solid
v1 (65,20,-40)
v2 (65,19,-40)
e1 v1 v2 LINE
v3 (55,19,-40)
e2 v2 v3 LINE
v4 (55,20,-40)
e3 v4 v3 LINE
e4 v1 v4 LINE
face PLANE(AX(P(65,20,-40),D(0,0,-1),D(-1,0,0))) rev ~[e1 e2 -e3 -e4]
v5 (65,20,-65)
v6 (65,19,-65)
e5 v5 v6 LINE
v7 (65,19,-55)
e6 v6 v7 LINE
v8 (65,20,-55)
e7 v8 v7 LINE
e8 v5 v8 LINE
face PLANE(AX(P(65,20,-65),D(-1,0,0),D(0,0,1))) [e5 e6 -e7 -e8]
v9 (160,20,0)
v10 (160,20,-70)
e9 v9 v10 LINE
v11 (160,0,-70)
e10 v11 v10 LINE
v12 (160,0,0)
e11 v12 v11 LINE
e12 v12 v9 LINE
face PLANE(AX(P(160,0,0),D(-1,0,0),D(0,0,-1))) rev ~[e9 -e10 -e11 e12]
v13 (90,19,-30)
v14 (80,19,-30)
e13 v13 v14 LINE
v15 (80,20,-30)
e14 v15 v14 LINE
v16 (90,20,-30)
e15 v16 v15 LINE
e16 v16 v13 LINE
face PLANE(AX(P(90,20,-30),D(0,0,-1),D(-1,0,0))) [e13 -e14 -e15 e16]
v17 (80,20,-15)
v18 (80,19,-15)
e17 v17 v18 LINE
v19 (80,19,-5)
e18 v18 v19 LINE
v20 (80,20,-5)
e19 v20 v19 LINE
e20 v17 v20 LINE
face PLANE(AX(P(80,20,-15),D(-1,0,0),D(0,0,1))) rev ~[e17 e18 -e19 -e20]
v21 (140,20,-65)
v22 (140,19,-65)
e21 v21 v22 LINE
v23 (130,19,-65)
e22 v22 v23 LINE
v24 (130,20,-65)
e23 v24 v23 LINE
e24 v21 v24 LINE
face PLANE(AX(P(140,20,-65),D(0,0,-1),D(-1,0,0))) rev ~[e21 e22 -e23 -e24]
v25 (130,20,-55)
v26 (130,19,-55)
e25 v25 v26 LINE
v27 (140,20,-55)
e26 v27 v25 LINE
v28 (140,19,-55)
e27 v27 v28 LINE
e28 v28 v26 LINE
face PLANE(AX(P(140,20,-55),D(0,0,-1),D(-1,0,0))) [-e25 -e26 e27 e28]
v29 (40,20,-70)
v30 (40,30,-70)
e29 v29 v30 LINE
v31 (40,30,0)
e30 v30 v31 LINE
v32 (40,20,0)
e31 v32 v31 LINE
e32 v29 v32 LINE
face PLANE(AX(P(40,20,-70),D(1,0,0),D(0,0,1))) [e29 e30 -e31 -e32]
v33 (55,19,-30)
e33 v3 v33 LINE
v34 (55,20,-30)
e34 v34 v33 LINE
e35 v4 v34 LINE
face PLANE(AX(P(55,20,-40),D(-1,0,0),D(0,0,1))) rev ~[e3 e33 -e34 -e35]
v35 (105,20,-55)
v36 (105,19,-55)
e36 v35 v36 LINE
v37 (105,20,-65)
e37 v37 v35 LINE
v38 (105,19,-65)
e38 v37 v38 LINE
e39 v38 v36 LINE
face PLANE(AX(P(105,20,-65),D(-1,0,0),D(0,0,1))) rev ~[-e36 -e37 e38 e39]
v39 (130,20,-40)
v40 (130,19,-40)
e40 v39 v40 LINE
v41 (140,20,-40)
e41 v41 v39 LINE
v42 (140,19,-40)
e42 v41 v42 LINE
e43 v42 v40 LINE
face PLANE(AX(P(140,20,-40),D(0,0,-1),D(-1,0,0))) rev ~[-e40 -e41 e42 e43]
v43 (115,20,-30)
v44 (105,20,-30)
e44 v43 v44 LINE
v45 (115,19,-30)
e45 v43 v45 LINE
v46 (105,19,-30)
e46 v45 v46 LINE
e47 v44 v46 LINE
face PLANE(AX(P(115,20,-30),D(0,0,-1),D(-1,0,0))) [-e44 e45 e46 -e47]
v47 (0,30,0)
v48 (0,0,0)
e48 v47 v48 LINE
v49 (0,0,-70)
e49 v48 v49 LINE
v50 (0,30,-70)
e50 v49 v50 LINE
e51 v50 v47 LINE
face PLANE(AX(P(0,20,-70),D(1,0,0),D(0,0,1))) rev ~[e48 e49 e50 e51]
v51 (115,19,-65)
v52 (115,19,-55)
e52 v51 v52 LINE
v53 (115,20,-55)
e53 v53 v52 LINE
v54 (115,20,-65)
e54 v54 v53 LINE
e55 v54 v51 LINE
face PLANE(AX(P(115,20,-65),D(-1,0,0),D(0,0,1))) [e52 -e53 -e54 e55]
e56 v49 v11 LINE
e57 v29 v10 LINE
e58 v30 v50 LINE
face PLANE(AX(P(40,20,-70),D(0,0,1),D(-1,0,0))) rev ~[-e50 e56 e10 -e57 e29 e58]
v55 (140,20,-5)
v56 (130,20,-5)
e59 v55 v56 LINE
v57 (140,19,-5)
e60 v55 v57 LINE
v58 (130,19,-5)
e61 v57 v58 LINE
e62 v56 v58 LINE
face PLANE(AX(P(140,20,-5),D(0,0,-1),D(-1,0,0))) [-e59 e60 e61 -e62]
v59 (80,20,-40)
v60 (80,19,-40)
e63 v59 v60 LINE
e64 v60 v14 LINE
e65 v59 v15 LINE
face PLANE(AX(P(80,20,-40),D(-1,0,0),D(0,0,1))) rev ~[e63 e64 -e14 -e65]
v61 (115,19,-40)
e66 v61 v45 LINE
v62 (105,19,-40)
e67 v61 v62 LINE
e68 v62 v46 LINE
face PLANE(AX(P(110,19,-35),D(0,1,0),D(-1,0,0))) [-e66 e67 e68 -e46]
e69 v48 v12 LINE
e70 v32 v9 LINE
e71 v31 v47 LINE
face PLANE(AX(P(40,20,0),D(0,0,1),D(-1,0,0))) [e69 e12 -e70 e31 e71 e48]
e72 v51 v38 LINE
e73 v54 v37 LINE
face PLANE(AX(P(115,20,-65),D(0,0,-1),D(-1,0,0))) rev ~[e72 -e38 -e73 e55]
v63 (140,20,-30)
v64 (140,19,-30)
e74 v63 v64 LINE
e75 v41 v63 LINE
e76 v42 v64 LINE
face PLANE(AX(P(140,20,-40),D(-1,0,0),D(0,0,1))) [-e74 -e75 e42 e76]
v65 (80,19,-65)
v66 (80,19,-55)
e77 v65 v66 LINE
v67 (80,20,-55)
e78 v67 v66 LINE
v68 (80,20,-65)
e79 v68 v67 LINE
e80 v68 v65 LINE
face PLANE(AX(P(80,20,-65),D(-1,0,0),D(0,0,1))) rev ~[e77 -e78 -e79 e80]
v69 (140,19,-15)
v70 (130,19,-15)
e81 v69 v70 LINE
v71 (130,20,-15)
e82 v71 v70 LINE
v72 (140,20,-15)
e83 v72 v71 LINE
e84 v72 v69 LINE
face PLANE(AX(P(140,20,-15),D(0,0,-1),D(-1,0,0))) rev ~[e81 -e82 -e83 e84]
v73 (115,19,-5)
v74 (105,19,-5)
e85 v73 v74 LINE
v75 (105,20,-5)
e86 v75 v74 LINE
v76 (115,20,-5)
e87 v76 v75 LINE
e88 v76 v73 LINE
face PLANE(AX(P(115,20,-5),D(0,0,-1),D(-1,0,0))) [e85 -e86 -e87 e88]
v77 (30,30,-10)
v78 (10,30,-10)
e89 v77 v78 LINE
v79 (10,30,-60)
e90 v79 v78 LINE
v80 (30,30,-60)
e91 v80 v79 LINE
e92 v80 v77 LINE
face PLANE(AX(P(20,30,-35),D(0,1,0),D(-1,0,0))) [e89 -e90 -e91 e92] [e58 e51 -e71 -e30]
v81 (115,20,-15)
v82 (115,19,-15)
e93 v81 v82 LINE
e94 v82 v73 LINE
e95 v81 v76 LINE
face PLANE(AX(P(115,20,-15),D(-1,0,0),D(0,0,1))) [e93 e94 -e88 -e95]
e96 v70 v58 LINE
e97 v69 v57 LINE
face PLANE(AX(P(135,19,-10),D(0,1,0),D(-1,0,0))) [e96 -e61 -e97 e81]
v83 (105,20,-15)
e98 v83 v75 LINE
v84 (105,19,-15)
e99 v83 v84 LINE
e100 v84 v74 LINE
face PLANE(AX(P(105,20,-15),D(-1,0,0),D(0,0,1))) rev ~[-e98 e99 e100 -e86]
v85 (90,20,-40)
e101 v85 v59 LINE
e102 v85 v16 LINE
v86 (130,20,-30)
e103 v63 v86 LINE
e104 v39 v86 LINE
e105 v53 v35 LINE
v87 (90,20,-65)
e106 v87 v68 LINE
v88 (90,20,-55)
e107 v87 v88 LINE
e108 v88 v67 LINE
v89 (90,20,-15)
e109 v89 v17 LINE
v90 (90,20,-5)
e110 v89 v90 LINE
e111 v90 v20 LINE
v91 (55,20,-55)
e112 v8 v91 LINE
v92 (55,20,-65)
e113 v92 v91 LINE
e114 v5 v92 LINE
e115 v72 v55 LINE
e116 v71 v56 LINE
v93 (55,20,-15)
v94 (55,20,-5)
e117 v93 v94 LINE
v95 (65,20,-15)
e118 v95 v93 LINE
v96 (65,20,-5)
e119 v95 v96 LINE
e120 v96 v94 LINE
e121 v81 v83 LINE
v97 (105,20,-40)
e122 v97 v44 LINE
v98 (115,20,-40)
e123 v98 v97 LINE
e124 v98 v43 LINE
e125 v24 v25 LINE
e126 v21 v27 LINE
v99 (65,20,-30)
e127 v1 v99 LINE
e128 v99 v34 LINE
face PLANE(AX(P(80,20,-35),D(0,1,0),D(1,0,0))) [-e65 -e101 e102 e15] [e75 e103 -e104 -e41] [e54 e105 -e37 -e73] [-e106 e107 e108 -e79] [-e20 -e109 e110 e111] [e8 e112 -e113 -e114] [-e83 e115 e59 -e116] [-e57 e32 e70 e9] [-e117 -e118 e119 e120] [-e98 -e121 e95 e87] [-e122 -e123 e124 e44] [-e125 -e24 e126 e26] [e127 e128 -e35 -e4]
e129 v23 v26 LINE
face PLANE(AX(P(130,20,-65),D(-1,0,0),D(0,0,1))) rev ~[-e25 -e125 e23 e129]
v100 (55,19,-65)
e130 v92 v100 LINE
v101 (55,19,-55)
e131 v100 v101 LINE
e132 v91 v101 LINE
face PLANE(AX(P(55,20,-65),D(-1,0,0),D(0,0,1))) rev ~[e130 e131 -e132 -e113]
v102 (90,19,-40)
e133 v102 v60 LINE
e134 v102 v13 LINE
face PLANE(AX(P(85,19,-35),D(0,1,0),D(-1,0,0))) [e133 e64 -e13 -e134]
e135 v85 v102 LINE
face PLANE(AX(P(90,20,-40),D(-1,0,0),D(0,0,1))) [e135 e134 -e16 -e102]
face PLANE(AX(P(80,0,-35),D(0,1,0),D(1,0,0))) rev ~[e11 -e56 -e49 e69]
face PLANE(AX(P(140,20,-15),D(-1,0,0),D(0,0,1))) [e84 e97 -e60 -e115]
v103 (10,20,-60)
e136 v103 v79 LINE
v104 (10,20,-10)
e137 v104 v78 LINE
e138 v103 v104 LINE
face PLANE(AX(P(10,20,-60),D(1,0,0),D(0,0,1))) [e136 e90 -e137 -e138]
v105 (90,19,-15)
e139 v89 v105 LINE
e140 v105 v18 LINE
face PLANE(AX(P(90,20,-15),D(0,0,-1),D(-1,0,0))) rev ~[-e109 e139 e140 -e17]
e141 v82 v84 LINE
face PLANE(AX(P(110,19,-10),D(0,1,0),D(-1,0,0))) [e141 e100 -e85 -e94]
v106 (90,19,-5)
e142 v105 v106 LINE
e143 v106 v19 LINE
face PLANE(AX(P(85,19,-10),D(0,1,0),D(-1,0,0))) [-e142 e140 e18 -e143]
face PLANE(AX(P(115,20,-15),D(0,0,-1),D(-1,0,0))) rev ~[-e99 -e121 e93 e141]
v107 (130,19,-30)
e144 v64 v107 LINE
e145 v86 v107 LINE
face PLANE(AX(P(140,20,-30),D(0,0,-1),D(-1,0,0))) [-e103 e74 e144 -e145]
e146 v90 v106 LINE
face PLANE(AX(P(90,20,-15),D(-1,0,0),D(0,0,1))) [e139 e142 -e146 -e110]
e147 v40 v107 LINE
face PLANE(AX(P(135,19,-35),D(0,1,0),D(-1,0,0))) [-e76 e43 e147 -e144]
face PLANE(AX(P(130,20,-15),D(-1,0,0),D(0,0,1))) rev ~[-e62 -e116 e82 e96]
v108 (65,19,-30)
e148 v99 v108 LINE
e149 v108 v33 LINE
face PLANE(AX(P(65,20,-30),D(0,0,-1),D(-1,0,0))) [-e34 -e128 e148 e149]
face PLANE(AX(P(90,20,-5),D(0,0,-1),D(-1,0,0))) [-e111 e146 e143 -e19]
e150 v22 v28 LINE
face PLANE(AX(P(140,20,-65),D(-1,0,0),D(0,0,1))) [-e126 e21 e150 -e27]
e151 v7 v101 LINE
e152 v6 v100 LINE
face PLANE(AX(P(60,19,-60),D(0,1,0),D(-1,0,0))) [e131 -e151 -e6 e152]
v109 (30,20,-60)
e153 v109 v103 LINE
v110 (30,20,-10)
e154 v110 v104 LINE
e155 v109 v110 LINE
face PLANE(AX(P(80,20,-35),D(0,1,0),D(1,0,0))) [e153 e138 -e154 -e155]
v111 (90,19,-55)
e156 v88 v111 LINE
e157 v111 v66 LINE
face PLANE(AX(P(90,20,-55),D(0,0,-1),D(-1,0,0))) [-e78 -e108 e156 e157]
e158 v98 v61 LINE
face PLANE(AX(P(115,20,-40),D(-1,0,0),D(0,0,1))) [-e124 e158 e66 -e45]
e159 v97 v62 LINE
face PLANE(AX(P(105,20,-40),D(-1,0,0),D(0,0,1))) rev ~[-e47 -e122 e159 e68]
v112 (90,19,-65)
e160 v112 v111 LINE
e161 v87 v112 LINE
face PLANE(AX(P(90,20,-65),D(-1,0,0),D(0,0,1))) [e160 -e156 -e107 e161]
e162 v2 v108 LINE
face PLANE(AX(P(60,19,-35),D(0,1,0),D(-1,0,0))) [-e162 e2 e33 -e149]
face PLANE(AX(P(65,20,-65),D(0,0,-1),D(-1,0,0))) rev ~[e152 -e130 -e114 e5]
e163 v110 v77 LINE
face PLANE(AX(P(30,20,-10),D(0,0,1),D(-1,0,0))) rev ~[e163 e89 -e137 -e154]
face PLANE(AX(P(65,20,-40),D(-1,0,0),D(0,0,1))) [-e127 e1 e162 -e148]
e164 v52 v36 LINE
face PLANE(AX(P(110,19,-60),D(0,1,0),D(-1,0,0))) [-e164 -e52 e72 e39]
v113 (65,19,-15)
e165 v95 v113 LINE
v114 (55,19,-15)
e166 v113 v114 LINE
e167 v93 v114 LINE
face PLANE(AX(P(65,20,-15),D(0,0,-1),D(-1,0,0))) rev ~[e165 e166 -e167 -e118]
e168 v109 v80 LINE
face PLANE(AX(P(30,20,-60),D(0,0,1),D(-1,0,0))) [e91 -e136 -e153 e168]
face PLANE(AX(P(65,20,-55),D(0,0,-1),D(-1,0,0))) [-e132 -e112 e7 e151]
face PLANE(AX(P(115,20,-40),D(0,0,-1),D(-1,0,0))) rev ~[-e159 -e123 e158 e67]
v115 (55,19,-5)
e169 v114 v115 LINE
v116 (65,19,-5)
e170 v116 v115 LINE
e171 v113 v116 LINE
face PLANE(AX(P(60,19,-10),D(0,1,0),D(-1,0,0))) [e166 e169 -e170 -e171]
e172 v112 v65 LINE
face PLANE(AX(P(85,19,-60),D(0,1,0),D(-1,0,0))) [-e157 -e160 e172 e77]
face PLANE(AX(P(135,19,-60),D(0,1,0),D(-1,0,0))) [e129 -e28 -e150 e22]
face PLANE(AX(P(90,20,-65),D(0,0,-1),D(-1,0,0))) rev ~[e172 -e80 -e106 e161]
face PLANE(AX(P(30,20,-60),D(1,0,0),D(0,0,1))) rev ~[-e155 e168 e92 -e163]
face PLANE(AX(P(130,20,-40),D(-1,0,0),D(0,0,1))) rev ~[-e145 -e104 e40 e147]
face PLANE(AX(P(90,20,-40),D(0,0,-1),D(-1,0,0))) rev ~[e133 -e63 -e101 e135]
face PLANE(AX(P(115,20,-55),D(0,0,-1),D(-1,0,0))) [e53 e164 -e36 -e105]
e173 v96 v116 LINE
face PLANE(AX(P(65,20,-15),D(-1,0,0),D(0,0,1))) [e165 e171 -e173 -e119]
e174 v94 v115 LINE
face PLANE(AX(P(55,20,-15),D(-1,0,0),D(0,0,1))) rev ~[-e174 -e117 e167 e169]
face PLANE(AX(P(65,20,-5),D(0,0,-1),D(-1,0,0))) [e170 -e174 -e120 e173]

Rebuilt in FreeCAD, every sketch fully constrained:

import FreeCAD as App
import Part
import Sketcher
Q = App.Units.Quantity


def add_polygon(sketch, points):
    """Adds a closed chain of lines whose ends are joined by coincident constraints."""
    first, n = sketch.GeometryCount, len(points)
    for a, b in zip(points, points[1:] + points[:1]):
        sketch.addGeometry(Part.LineSegment(App.Vector(*a, 0), App.Vector(*b, 0)), False)
    for i in range(n):
        sketch.addConstraint(Sketcher.Constraint("Coincident", first + i, 2, first + (i + 1) % n, 1))

doc = App.newDocument("Part")
body = doc.addObject("PartDesign::Body", "Body")

sketch1 = body.newObject("Sketcher::SketchObject", "Sketch")
sketch1.AttachmentSupport = (doc.getObject("XZ_Plane"), [""])
sketch1.MapMode = "FlatFace"
add_polygon(sketch1, [(0, -70), (0, 0), (160, 0), (160, -70)])
sketch1.addConstraint([
    Sketcher.Constraint("Vertical", 0),
    Sketcher.Constraint("Horizontal", 1),
    Sketcher.Constraint("Vertical", 2),
    Sketcher.Constraint("Horizontal", 3),
    Sketcher.Constraint("Coincident", 0, 2, -1, 1),
    Sketcher.Constraint("DistanceX", 1, 1, 1, 2, Q("160 mm")),
    Sketcher.Constraint("DistanceY", 0, 1, 0, 2, Q("70 mm")),
])
pad1 = body.newObject("PartDesign::Pad", "Pad")
pad1.Profile = sketch1
pad1.Length = 20
pad1.Reversed = True

sketch2 = body.newObject("Sketcher::SketchObject", "Sketch001")
sketch2.AttachmentSupport = (doc.getObject("XZ_Plane"), [""])
sketch2.MapMode = "FlatFace"
sketch2.AttachmentOffset = App.Placement(App.Vector(0, 0, -20), App.Rotation())
add_polygon(sketch2, [(40, 0), (40, -70), (0, -70), (0, 0)])
add_polygon(sketch2, [(10, -60), (30, -60), (30, -10), (10, -10)])
sketch2.addConstraint([
    Sketcher.Constraint("Vertical", 0),
    Sketcher.Constraint("Horizontal", 1),
    Sketcher.Constraint("Vertical", 2),
    Sketcher.Constraint("Horizontal", 3),
    Sketcher.Constraint("Horizontal", 4),
    Sketcher.Constraint("Vertical", 5),
    Sketcher.Constraint("Horizontal", 6),
    Sketcher.Constraint("Vertical", 7),
    Sketcher.Constraint("Coincident", 2, 2, -1, 1),
    Sketcher.Constraint("DistanceX", 1, 2, 1, 1, Q("40 mm")),
    Sketcher.Constraint("DistanceX", 4, 1, 4, 2, Q("20 mm")),
    Sketcher.Constraint("DistanceY", 0, 2, 0, 1, Q("70 mm")),
    Sketcher.Constraint("DistanceY", 5, 1, 5, 2, Q("50 mm")),
    Sketcher.Constraint("DistanceX", -1, 1, 4, 2, Q("30 mm")),
    Sketcher.Constraint("DistanceY", 4, 2, -1, 1, Q("60 mm")),
])
pad2 = body.newObject("PartDesign::Pad", "Pad001")
pad2.Profile = sketch2
pad2.Length = 10
pad2.Reversed = True

sketch3 = body.newObject("Sketcher::SketchObject", "Sketch002")
sketch3.AttachmentSupport = (doc.getObject("XZ_Plane"), [""])
sketch3.MapMode = "FlatFace"
sketch3.AttachmentOffset = App.Placement(App.Vector(0, 0, -20), App.Rotation())
add_polygon(sketch3, [(115, -55), (115, -65), (105, -65), (105, -55)])
add_polygon(sketch3, [(115, -30), (115, -40), (105, -40), (105, -30)])
add_polygon(sketch3, [(140, -30), (140, -40), (130, -40), (130, -30)])
add_polygon(sketch3, [(65, -55), (65, -65), (55, -65), (55, -55)])
add_polygon(sketch3, [(65, -5), (65, -15), (55, -15), (55, -5)])
add_polygon(sketch3, [(140, -55), (140, -65), (130, -65), (130, -55)])
add_polygon(sketch3, [(140, -5), (140, -15), (130, -15), (130, -5)])
add_polygon(sketch3, [(115, -5), (115, -15), (105, -15), (105, -5)])
add_polygon(sketch3, [(90, -5), (90, -15), (80, -15), (80, -5)])
add_polygon(sketch3, [(90, -55), (90, -65), (80, -65), (80, -55)])
add_polygon(sketch3, [(65, -30), (65, -40), (55, -40), (55, -30)])
add_polygon(sketch3, [(90, -30), (90, -40), (80, -40), (80, -30)])
sketch3.addConstraint([
    Sketcher.Constraint("Vertical", 0),
    Sketcher.Constraint("Horizontal", 1),
    Sketcher.Constraint("Vertical", 2),
    Sketcher.Constraint("Horizontal", 3),
    Sketcher.Constraint("Vertical", 4),
    Sketcher.Constraint("Horizontal", 5),
    Sketcher.Constraint("Vertical", 6),
    Sketcher.Constraint("Horizontal", 7),
    Sketcher.Constraint("Vertical", 8),
    Sketcher.Constraint("Horizontal", 9),
    Sketcher.Constraint("Vertical", 10),
    Sketcher.Constraint("Horizontal", 11),
    Sketcher.Constraint("Vertical", 12),
    Sketcher.Constraint("Horizontal", 13),
    Sketcher.Constraint("Vertical", 14),
    Sketcher.Constraint("Horizontal", 15),
    Sketcher.Constraint("Vertical", 16),
    Sketcher.Constraint("Horizontal", 17),
    Sketcher.Constraint("Vertical", 18),
    Sketcher.Constraint("Horizontal", 19),
    Sketcher.Constraint("Vertical", 20),
    Sketcher.Constraint("Horizontal", 21),
    Sketcher.Constraint("Vertical", 22),
    Sketcher.Constraint("Horizontal", 23),
    Sketcher.Constraint("Vertical", 24),
    Sketcher.Constraint("Horizontal", 25),
    Sketcher.Constraint("Vertical", 26),
    Sketcher.Constraint("Horizontal", 27),
    Sketcher.Constraint("Vertical", 28),
    Sketcher.Constraint("Horizontal", 29),
    Sketcher.Constraint("Vertical", 30),
    Sketcher.Constraint("Horizontal", 31),
    Sketcher.Constraint("Vertical", 32),
    Sketcher.Constraint("Horizontal", 33),
    Sketcher.Constraint("Vertical", 34),
    Sketcher.Constraint("Horizontal", 35),
    Sketcher.Constraint("Vertical", 36),
    Sketcher.Constraint("Horizontal", 37),
    Sketcher.Constraint("Vertical", 38),
    Sketcher.Constraint("Horizontal", 39),
    Sketcher.Constraint("Vertical", 40),
    Sketcher.Constraint("Horizontal", 41),
    Sketcher.Constraint("Vertical", 42),
    Sketcher.Constraint("Horizontal", 43),
    Sketcher.Constraint("Vertical", 44),
    Sketcher.Constraint("Horizontal", 45),
    Sketcher.Constraint("Vertical", 46),
    Sketcher.Constraint("Horizontal", 47),
    Sketcher.Constraint("Horizontal", 5, 2, 8, 2),
    Sketcher.Constraint("Horizontal", 7, 2, 10, 2),
    Sketcher.Constraint("Horizontal", 1, 2, 12, 2),
    Sketcher.Constraint("Horizontal", 3, 2, 14, 2),
    Sketcher.Constraint("Horizontal", 13, 2, 20, 2),
    Sketcher.Constraint("Horizontal", 15, 2, 22, 2),
    Sketcher.Constraint("Horizontal", 17, 2, 24, 2),
    Sketcher.Constraint("Horizontal", 19, 2, 26, 2),
    Sketcher.Constraint("Horizontal", 25, 2, 28, 2),
    Sketcher.Constraint("Horizontal", 27, 2, 30, 2),
    Sketcher.Constraint("Horizontal", 29, 2, 32, 2),
    Sketcher.Constraint("Horizontal", 31, 2, 34, 2),
    Sketcher.Constraint("Horizontal", 21, 2, 36, 2),
    Sketcher.Constraint("Horizontal", 23, 2, 38, 2),
    Sketcher.Constraint("Horizontal", 9, 2, 40, 2),
    Sketcher.Constraint("Horizontal", 11, 2, 42, 2),
    Sketcher.Constraint("Horizontal", 41, 2, 44, 2),
    Sketcher.Constraint("Horizontal", 43, 2, 46, 2),
    Sketcher.Constraint("Vertical", 3, 2, 4, 2),
    Sketcher.Constraint("Vertical", 2, 2, 5, 2),
    Sketcher.Constraint("Vertical", 15, 2, 16, 2),
    Sketcher.Constraint("Vertical", 14, 2, 17, 2),
    Sketcher.Constraint("Vertical", 11, 2, 20, 2),
    Sketcher.Constraint("Vertical", 10, 2, 21, 2),
    Sketcher.Constraint("Vertical", 23, 2, 24, 2),
    Sketcher.Constraint("Vertical", 22, 2, 25, 2),
    Sketcher.Constraint("Vertical", 7, 2, 28, 2),
    Sketcher.Constraint("Vertical", 6, 2, 29, 2),
    Sketcher.Constraint("Vertical", 35, 2, 36, 2),
    Sketcher.Constraint("Vertical", 34, 2, 37, 2),
    Sketcher.Constraint("Vertical", 19, 2, 40, 2),
    Sketcher.Constraint("Vertical", 18, 2, 41, 2),
    Sketcher.Constraint("Vertical", 39, 2, 44, 2),
    Sketcher.Constraint("Vertical", 38, 2, 45, 2),
    Sketcher.Constraint("Equal", 7, 9),
    Sketcher.Constraint("Equal", 11, 13),
    Sketcher.Constraint("Equal", 31, 33),
    Sketcher.Constraint("Equal", 47, 0),
    Sketcher.Constraint("Equal", 2, 4),
    Sketcher.Constraint("Equal", 14, 16),
    Sketcher.Constraint("DistanceX", 1, 2, 1, 1, Q("10 mm")),
    Sketcher.Constraint("DistanceX", -1, 1, 0, 2, Q("115 mm")),
    Sketcher.Constraint("DistanceY", 0, 2, -1, 1, Q("65 mm")),
    Sketcher.Constraint("DistanceY", 4, 2, -1, 1, Q("40 mm")),
    Sketcher.Constraint("DistanceX", -1, 1, 8, 2, Q("140 mm")),
    Sketcher.Constraint("DistanceX", -1, 1, 12, 2, Q("65 mm")),
    Sketcher.Constraint("DistanceY", 16, 2, -1, 1, Q("15 mm")),
    Sketcher.Constraint("DistanceX", -1, 1, 32, 2, Q("90 mm")),
])
pocket1 = body.newObject("PartDesign::Pocket", "Pocket")
pocket1.Profile = sketch3
pocket1.Length = 1
pocket1.Reversed = True

doc.recompute()
